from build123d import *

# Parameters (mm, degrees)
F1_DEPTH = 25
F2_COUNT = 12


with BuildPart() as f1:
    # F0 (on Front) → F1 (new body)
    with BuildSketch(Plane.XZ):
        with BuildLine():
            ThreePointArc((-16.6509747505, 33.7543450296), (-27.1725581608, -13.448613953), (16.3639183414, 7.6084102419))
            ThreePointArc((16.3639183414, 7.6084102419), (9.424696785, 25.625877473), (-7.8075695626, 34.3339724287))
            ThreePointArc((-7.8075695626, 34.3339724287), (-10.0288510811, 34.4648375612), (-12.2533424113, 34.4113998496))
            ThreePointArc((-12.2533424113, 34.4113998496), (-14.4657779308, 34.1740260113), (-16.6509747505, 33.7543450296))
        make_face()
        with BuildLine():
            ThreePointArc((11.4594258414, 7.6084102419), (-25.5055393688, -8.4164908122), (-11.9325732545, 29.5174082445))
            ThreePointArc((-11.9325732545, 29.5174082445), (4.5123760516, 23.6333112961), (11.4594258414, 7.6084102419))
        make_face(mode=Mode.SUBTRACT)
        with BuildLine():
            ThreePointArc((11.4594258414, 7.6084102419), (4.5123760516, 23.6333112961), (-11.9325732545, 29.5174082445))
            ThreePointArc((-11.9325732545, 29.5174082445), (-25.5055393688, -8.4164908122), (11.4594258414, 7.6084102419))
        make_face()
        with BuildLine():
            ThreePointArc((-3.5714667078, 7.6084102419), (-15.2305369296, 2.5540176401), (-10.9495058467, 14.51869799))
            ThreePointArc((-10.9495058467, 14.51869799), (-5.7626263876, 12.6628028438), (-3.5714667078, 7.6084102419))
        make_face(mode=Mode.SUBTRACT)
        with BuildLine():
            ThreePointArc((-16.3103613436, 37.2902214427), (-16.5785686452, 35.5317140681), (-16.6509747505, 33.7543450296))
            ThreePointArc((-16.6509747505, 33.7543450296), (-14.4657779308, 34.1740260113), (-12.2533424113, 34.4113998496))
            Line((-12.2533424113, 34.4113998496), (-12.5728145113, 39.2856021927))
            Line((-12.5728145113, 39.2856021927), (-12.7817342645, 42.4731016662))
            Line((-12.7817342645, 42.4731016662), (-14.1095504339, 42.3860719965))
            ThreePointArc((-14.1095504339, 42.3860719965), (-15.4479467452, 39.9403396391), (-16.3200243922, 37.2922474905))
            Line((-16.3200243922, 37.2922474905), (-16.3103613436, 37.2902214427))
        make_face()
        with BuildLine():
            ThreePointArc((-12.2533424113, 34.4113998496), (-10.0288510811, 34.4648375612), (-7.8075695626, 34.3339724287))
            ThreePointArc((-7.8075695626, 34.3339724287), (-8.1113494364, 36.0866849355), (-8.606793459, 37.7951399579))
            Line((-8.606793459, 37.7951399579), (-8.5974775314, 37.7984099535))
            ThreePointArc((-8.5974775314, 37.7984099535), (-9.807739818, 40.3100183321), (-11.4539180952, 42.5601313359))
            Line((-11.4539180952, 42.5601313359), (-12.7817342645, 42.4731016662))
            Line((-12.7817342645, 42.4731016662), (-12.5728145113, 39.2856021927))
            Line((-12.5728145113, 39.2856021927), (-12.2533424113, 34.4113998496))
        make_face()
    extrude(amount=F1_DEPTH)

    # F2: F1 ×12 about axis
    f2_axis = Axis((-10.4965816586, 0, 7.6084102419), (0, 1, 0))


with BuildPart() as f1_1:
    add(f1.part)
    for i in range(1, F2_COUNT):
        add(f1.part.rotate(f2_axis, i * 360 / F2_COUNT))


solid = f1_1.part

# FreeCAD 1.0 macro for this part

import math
import FreeCAD as App
import Part
import Sketcher

V = App.Vector

doc = App.newDocument("Part")
params = doc.addObject("Spreadsheet::Sheet", "Params")
for row, (alias, value) in enumerate([
    ("pad1_length", "25 mm"),
], start=1):
    params.set(f"A{row}", alias)
    params.set(f"B{row}", "=" + value)
    params.setAlias(f"B{row}", alias)

body = doc.addObject("PartDesign::Body", "Body")

# Sketch on XZ plane
sketch1 = doc.addObject("Sketcher::SketchObject", "Sketch")
body.addObject(sketch1)
sketch1.AttachmentSupport = (doc.XZ_Plane, [""])
sketch1.MapMode = "FlatFace"
sketch1.addGeometry(Part.ArcOfCircle(Part.Circle(V(-10.496582, 7.60841, 0), V(0, 0, 1), 26.8605), math.radians(103.245521), math.radians(360)), False)
sketch1.addGeometry(Part.ArcOfCircle(Part.Circle(V(-10.496582, 7.60841, 0), V(0, 0, 1), 26.8605), math.radians(0), math.radians(84.254479)), False)
sketch1.addGeometry(Part.ArcOfCircle(Part.Circle(V(-23.785141, 32.467424, 0), V(0, 0, 1), 16.08623), math.radians(6.663264), math.radians(19.341463)), False)
sketch1.addGeometry(Part.LineSegment(V(-8.606793, 37.79514, 0), V(-8.597478, 37.79841, 0)), False)
sketch1.addGeometry(Part.ArcOfCircle(Part.Circle(V(-22.920366, 32.444074, 0), V(0, 0, 1), 15.290979), math.radians(20.49729), math.radians(41.419743)), False)
sketch1.addGeometry(Part.LineSegment(V(-11.453918, 42.560131, 0), V(-12.781734, 42.473102, 0)), False)
sketch1.addGeometry(Part.LineSegment(V(-12.781734, 42.473102, 0), V(-14.10955, 42.386072, 0)), False)
sketch1.addGeometry(Part.ArcOfCircle(Part.Circle(V(-1.420789, 33.85323, 0), V(0, 0, 1), 15.290979), math.radians(146.080257), math.radians(167.00271)), False)
sketch1.addGeometry(Part.LineSegment(V(-16.320024, 37.292247, 0), V(-16.310361, 37.290221, 0)), False)
sketch1.addGeometry(Part.ArcOfCircle(Part.Circle(V(-0.56646, 33.989257, 0), V(0, 0, 1), 16.08623), math.radians(168.158537), math.radians(180.836736)), False)
sketch1.addGeometry(Part.ArcOfCircle(Part.Circle(V(-10.496582, 7.60841, 0), V(0, 0, 1), 6.925115), math.radians(0), math.radians(93.75)), False)
sketch1.addGeometry(Part.ArcOfCircle(Part.Circle(V(-10.496582, 7.60841, 0), V(0, 0, 1), 6.925115), math.radians(93.75), math.radians(360)), False)
sketch1.addConstraint(Sketcher.Constraint("Coincident", 0, 2, 1, 1))
sketch1.addConstraint(Sketcher.Constraint("Coincident", 1, 2, 2, 1))
sketch1.addConstraint(Sketcher.Constraint("Coincident", 2, 2, 3, 1))
sketch1.addConstraint(Sketcher.Constraint("Coincident", 3, 2, 4, 1))
sketch1.addConstraint(Sketcher.Constraint("Coincident", 4, 2, 5, 1))
sketch1.addConstraint(Sketcher.Constraint("Coincident", 5, 2, 6, 1))
sketch1.addConstraint(Sketcher.Constraint("Coincident", 6, 2, 7, 1))
sketch1.addConstraint(Sketcher.Constraint("Coincident", 7, 2, 8, 1))
sketch1.addConstraint(Sketcher.Constraint("Coincident", 8, 2, 9, 1))
sketch1.addConstraint(Sketcher.Constraint("Coincident", 9, 2, 0, 1))
sketch1.addConstraint(Sketcher.Constraint("Coincident", 10, 1, 11, 2))
sketch1.addConstraint(Sketcher.Constraint("Coincident", 11, 1, 10, 2))
sketch1.addConstraint(Sketcher.Constraint("Coincident", 1, 3, 0, 3))
sketch1.addConstraint(Sketcher.Constraint("Coincident", 10, 3, 0, 3))
sketch1.addConstraint(Sketcher.Constraint("Radius", 0, 26.8605))
sketch1.addConstraint(Sketcher.Constraint("Radius", 2, 16.08623))
sketch1.addConstraint(Sketcher.Constraint("Radius", 4, 15.290979))
sketch1.addConstraint(Sketcher.Constraint("Radius", 7, 15.290979))
sketch1.addConstraint(Sketcher.Constraint("Radius", 9, 16.08623))
sketch1.addConstraint(Sketcher.Constraint("Radius", 10, 6.925115))
sketch1.addConstraint(Sketcher.Constraint("Radius", 11, 6.925115))
sketch1.addConstraint(Sketcher.Constraint("DistanceY", -1, 1, 5, 2, 42.473102))
sketch1.addConstraint(Sketcher.Constraint("DistanceY", 4, 3, 1, 2, 1.889899))
sketch1.addConstraint(Sketcher.Constraint("DistanceY", 7, 3, 4, 2, 8.706901))
sketch1.addConstraint(Sketcher.Constraint("DistanceY", 1, 2, 6, 2, 8.0521))
sketch1.addConstraint(Sketcher.Constraint("DistanceX", 0, 3, -1, 1, 10.496582))
sketch1.addConstraint(Sketcher.Constraint("DistanceY", -1, 1, 0, 3, 7.60841))
sketch1.addConstraint(Sketcher.Constraint("DistanceX", 2, 3, -1, 1, 23.785141))
sketch1.addConstraint(Sketcher.Constraint("DistanceX", 7, 3, -1, 1, 1.420789))
sketch1.addConstraint(Sketcher.Constraint("DistanceY", -1, 1, 7, 3, 33.85323))
sketch1.addConstraint(Sketcher.Constraint("DistanceX", 9, 3, -1, 1, 0.56646))
sketch1.addConstraint(Sketcher.Constraint("DistanceY", -1, 1, 0, 2, 7.60841))
sketch1.addConstraint(Sketcher.Constraint("DistanceX", 1, 2, -1, 1, 7.80757))
sketch1.addConstraint(Sketcher.Constraint("DistanceY", -1, 1, 2, 2, 37.79514))
sketch1.addConstraint(Sketcher.Constraint("DistanceY", -1, 1, 3, 2, 37.79841))
sketch1.addConstraint(Sketcher.Constraint("DistanceX", 4, 2, -1, 1, 11.453918))
sketch1.addConstraint(Sketcher.Constraint("DistanceX", 8, 2, -1, 1, 16.310361))
sketch1.addConstraint(Sketcher.Constraint("DistanceY", -1, 1, 8, 2, 37.290221))
sketch1.addConstraint(Sketcher.Constraint("DistanceY", -1, 1, 10, 1, 7.60841))
sketch1.addConstraint(Sketcher.Constraint("DistanceX", 5, 2, 2, 2, 4.174941))
sketch1.addConstraint(Sketcher.Constraint("DistanceX", 7, 2, 5, 2, 3.53829))
sketch1.addConstraint(Sketcher.Constraint("DistanceX", 11, 1, 10, 1, 7.378039))
pad1 = doc.addObject("PartDesign::Pad", "Pad")
body.addObject(pad1)
pad1.Profile = sketch1
pad1.setExpression("Length", "Params.pad1_length")
body2 = doc.addObject("PartDesign::Body", "Body001")
doc.recompute()

body2.BaseFeature = body
doc.recompute()

body3 = doc.addObject("PartDesign::Body", "Body002")
body3.BaseFeature = body
body3.Placement = App.Placement(V(-5.21048, 0, -4.228957), App.Rotation(V(0, 1, 0), 30))
boolean = doc.addObject("PartDesign::Boolean", "Boolean")
body2.addObject(boolean)
boolean.Type = "Fuse"
boolean.addObjects([body3])
doc.recompute()

body4 = doc.addObject("PartDesign::Body", "Body003")
body4.BaseFeature = body
body4.Placement = App.Placement(V(-11.837367, 0, -5.286101), App.Rotation(V(0, 1, 0), 60))
boolean2 = doc.addObject("PartDesign::Boolean", "Boolean001")
body2.addObject(boolean2)
boolean2.Type = "Fuse"
boolean2.addObjects([body4])
doc.recompute()

body5 = doc.addObject("PartDesign::Body", "Body004")
body5.BaseFeature = body
body5.Placement = App.Placement(V(-18.104992, 0, -2.888171), App.Rotation(V(0, 1, 0), 90))
boolean3 = doc.addObject("PartDesign::Boolean", "Boolean002")
body2.addObject(boolean3)
boolean3.Type = "Fuse"
boolean3.addObjects([body5])
doc.recompute()

body6 = doc.addObject("PartDesign::Body", "Body005")
body6.BaseFeature = body
body6.Placement = App.Placement(V(-22.333949, 0, 2.322309), App.Rotation(V(0, 1, 0), 120))
boolean4 = doc.addObject("PartDesign::Boolean", "Boolean003")
body2.addObject(boolean4)
boolean4.Type = "Fuse"
boolean4.addObjects([body6])
doc.recompute()

body7 = doc.addObject("PartDesign::Body", "Body006")
body7.BaseFeature = body
body7.Placement = App.Placement(V(-23.391093, 0, 8.949196), App.Rotation(V(0, 1, 0), 150))
boolean5 = doc.addObject("PartDesign::Boolean", "Boolean004")
body2.addObject(boolean5)
boolean5.Type = "Fuse"
boolean5.addObjects([body7])
doc.recompute()

body8 = doc.addObject("PartDesign::Body", "Body007")
body8.BaseFeature = body
body8.Placement = App.Placement(V(-20.993163, 0, 15.21682), App.Rotation(V(0, 1, 0), 180))
boolean6 = doc.addObject("PartDesign::Boolean", "Boolean005")
body2.addObject(boolean6)
boolean6.Type = "Fuse"
boolean6.addObjects([body8])
doc.recompute()

body9 = doc.addObject("PartDesign::Body", "Body008")
body9.BaseFeature = body
body9.Placement = App.Placement(V(-15.782683, 0, 19.445778), App.Rotation(V(0, 1, 0), 210))
boolean7 = doc.addObject("PartDesign::Boolean", "Boolean006")
body2.addObject(boolean7)
boolean7.Type = "Fuse"
boolean7.addObjects([body9])
doc.recompute()

body10 = doc.addObject("PartDesign::Body", "Body009")
body10.BaseFeature = body
body10.Placement = App.Placement(V(-9.155796, 0, 20.502922), App.Rotation(V(0, 1, 0), 240))
boolean8 = doc.addObject("PartDesign::Boolean", "Boolean007")
body2.addObject(boolean8)
boolean8.Type = "Fuse"
boolean8.addObjects([body10])
doc.recompute()

body11 = doc.addObject("PartDesign::Body", "Body010")
body11.BaseFeature = body
body11.Placement = App.Placement(V(-2.888171, 0, 18.104992), App.Rotation(V(0, 1, 0), 270))
boolean9 = doc.addObject("PartDesign::Boolean", "Boolean008")
body2.addObject(boolean9)
boolean9.Type = "Fuse"
boolean9.addObjects([body11])
doc.recompute()

body12 = doc.addObject("PartDesign::Body", "Body011")
body12.BaseFeature = body
body12.Placement = App.Placement(V(1.340786, 0, 12.894511), App.Rotation(V(0, 1, 0), 300))
boolean10 = doc.addObject("PartDesign::Boolean", "Boolean009")
body2.addObject(boolean10)
boolean10.Type = "Fuse"
boolean10.addObjects([body12])
doc.recompute()

body.Placement = App.Placement(V(2.39793, 0, 6.267625), App.Rotation(V(0, 1, 0), 330))
boolean11 = doc.addObject("PartDesign::Boolean", "Boolean010")
body2.addObject(boolean11)
boolean11.Type = "Fuse"
boolean11.addObjects([body])

doc.recompute()
